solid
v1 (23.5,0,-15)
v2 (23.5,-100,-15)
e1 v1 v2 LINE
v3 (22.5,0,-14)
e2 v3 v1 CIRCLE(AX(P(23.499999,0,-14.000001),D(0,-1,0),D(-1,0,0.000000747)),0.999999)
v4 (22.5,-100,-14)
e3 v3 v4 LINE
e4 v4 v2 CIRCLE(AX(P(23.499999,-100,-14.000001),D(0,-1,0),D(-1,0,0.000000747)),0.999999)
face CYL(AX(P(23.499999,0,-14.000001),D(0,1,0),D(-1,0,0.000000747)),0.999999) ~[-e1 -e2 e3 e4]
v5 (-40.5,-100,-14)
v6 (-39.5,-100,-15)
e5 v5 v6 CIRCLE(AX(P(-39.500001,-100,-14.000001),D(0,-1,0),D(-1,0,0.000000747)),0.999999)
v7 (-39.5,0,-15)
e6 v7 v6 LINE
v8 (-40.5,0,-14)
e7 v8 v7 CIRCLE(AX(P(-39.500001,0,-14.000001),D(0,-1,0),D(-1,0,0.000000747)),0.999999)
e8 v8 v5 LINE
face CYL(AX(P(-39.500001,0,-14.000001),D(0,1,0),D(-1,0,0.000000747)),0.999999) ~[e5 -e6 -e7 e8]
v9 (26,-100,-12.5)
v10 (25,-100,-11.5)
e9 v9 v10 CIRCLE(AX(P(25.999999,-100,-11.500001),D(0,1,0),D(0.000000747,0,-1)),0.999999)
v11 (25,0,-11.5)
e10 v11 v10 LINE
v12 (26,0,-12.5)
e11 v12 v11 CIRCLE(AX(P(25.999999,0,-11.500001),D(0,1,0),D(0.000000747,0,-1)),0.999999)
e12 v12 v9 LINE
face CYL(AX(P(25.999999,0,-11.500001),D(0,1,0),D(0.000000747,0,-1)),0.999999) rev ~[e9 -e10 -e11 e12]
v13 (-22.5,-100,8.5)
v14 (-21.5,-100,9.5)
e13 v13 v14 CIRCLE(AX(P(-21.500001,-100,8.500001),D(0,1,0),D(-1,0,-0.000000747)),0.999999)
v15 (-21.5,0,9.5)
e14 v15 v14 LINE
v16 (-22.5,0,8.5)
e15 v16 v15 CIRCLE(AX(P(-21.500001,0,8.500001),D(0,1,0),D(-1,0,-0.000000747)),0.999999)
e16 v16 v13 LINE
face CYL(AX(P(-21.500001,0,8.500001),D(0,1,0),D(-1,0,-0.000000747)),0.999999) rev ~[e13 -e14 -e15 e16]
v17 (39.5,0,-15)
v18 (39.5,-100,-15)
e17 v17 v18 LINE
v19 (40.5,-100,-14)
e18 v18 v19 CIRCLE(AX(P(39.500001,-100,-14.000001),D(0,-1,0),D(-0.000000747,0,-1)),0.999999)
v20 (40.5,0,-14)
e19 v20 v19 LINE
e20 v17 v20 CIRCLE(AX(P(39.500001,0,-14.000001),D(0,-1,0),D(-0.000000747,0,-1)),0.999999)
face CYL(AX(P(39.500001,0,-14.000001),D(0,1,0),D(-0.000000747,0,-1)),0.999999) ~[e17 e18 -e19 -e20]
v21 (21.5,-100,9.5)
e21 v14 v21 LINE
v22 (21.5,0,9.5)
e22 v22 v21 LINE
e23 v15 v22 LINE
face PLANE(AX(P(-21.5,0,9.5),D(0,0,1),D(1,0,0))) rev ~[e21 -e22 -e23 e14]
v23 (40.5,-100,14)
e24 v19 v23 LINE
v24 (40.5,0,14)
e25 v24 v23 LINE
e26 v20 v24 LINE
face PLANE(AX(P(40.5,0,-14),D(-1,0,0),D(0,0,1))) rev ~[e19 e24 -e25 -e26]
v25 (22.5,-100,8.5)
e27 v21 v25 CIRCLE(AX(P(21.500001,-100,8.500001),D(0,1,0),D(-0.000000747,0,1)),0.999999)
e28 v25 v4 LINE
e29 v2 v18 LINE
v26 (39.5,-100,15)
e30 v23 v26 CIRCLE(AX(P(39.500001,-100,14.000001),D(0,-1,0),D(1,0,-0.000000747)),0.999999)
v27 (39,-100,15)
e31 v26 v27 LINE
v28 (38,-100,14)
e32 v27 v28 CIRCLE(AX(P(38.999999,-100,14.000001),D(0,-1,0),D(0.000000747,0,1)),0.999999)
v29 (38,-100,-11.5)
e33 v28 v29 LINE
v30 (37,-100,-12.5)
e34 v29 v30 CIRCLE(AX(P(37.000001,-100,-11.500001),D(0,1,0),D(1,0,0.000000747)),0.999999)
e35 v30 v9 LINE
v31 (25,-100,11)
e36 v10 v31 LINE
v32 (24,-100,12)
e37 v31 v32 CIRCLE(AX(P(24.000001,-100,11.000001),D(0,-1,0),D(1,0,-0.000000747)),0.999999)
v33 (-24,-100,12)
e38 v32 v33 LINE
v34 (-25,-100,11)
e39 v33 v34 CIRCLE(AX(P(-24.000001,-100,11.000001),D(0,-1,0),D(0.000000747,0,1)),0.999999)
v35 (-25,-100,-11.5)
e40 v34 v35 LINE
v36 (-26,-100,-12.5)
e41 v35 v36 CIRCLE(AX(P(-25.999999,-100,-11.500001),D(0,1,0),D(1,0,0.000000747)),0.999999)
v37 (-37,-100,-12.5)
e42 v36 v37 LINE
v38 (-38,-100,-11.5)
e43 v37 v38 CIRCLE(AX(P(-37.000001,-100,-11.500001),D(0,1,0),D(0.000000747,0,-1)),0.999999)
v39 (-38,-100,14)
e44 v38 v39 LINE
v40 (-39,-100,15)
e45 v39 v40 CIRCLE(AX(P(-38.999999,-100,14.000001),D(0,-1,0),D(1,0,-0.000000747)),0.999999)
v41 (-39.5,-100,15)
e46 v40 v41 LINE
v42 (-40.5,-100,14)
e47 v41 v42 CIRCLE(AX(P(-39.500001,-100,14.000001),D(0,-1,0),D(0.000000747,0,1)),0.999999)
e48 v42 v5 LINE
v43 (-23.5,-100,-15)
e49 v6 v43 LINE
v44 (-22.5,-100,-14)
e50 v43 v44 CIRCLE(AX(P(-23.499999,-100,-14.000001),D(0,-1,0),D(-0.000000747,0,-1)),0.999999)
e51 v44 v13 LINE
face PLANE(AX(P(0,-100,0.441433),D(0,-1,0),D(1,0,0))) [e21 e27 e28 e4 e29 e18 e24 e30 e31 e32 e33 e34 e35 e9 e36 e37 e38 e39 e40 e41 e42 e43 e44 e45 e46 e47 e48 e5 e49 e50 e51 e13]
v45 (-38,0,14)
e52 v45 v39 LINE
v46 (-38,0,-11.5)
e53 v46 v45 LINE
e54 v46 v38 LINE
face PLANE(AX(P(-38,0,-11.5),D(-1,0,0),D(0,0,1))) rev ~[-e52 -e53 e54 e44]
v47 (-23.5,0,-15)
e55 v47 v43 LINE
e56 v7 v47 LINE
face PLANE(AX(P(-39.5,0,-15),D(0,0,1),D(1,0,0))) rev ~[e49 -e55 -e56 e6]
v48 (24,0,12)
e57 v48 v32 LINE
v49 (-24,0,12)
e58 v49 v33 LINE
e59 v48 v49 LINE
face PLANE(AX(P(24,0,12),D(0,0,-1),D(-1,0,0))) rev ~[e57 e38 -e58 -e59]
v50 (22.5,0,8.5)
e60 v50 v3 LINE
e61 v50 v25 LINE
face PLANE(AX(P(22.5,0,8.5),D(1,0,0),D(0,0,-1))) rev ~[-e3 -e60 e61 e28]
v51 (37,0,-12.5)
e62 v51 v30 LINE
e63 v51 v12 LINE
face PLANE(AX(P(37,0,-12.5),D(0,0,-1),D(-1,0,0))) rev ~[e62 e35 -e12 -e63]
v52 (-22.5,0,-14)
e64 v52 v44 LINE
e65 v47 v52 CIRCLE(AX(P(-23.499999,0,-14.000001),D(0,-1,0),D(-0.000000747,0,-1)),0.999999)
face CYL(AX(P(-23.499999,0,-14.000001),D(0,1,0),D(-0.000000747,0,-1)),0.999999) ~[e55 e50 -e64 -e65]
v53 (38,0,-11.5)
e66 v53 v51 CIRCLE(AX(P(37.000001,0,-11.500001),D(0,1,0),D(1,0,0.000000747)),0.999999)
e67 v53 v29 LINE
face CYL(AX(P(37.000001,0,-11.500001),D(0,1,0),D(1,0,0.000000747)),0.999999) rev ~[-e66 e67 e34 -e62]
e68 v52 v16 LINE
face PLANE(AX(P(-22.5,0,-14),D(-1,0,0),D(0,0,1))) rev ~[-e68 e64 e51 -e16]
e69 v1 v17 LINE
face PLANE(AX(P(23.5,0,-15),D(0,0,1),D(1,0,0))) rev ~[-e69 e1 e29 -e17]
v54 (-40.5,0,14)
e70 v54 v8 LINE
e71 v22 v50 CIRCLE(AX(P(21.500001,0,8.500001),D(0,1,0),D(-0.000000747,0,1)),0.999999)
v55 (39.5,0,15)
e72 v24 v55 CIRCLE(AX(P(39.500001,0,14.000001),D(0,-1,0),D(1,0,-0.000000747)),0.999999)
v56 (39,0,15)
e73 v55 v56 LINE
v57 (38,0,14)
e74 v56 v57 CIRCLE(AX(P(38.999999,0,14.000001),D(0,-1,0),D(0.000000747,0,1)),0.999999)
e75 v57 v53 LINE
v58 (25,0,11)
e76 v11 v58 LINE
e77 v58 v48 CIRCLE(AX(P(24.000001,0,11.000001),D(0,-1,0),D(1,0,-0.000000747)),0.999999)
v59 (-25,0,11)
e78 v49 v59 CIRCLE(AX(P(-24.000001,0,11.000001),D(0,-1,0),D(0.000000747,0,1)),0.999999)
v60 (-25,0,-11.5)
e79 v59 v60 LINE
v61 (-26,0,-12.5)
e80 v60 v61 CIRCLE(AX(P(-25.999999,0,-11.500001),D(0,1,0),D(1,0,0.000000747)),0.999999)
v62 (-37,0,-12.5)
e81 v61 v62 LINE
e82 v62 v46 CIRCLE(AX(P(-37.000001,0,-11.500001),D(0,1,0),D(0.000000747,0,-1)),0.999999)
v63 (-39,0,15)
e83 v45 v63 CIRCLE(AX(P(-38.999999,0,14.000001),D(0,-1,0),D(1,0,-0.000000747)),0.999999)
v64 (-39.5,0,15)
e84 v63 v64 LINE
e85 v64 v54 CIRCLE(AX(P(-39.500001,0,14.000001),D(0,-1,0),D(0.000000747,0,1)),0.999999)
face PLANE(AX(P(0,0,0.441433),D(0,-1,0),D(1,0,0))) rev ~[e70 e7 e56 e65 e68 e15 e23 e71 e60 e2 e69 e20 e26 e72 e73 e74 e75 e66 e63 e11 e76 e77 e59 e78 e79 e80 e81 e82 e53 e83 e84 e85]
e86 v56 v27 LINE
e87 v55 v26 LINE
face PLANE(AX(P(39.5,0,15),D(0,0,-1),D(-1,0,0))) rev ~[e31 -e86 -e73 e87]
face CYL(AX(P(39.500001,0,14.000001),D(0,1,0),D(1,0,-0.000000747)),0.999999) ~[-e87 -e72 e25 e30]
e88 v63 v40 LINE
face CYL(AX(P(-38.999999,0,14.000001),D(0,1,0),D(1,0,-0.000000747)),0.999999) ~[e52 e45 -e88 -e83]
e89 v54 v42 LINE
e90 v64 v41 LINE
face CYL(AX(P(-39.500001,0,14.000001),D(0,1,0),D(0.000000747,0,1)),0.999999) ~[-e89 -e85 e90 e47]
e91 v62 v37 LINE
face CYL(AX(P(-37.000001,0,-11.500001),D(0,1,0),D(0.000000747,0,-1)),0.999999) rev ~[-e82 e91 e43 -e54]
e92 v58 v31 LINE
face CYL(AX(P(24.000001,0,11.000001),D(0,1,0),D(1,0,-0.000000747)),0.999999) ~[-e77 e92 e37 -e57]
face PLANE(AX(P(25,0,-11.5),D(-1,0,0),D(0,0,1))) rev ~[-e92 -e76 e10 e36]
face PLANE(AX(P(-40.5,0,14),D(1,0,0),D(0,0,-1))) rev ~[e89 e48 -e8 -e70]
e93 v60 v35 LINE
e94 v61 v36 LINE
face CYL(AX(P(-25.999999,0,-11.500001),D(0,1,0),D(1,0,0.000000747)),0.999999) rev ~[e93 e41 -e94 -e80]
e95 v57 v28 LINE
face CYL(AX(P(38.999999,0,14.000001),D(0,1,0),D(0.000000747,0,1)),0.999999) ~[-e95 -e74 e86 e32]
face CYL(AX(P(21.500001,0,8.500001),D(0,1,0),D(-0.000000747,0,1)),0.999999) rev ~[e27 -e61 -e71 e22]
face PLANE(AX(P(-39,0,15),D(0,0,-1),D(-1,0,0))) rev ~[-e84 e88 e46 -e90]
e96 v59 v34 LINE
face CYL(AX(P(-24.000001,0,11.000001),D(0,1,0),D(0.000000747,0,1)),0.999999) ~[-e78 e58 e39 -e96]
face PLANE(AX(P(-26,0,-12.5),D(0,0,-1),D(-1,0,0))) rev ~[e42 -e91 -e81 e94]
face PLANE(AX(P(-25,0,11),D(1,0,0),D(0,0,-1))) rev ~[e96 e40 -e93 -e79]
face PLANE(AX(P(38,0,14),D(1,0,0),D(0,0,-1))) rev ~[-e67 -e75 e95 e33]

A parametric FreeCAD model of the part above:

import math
import FreeCAD as App
import Part
import Sketcher
from FreeCAD import Vector
Q = App.Units.Quantity

doc = App.newDocument("Part")
params = doc.addObject("Spreadsheet::Sheet", "Params")
for row, (alias, value) in enumerate([
    ("sketch1_radius", "0.999999 mm"),
    ("sketch1_width", "16 mm"),
    ("sketch1_width2", "11 mm"),
    ("sketch1_width3", "48 mm"),
    ("sketch1_width4", "43 mm"),
    ("pad1_length", "100 mm"),
], start=1):
    params.set(f"A{row}", alias)
    params.set(f"B{row}", "=" + value)
    params.setAlias(f"B{row}", alias)

body = doc.addObject("PartDesign::Body", "Body")

# Sketch on XZ plane
sketch1 = body.newObject("Sketcher::SketchObject", "Sketch")
sketch1.AttachmentSupport = (doc.getObject("XZ_Plane"), [""])
sketch1.MapMode = "FlatFace"
sketch1.addGeometry([
    Part.LineSegment(Vector(23.5, -15, 0), Vector(39.5, -15, 0)),  # 0
    Part.ArcOfCircle(Part.Circle(Vector(39.5, -14, 0), Vector(0, 0, 1), 1), math.radians(-90), math.radians(0)),  # 1
    Part.LineSegment(Vector(40.5, -14, 0), Vector(40.5, 14, 0)),  # 2
    Part.ArcOfCircle(Part.Circle(Vector(39.5, 14, 0), Vector(0, 0, 1), 1), math.radians(0), math.radians(90)),  # 3
    Part.LineSegment(Vector(39.5, 15, 0), Vector(39, 15, 0)),  # 4
    Part.ArcOfCircle(Part.Circle(Vector(39, 14, 0), Vector(0, 0, 1), 1), math.radians(90), math.radians(180)),  # 5
    Part.LineSegment(Vector(38, 14, 0), Vector(38, -11.5, 0)),  # 6
    Part.ArcOfCircle(Part.Circle(Vector(37, -11.5, 0), Vector(0, 0, 1), 1), math.radians(-90), math.radians(0)),  # 7
    Part.LineSegment(Vector(37, -12.5, 0), Vector(26, -12.5, 0)),  # 8
    Part.ArcOfCircle(Part.Circle(Vector(26, -11.5, 0), Vector(0, 0, 1), 1), math.radians(180), math.radians(270)),  # 9
    Part.LineSegment(Vector(25, -11.5, 0), Vector(25, 11, 0)),  # 10
    Part.ArcOfCircle(Part.Circle(Vector(24, 11, 0), Vector(0, 0, 1), 1), math.radians(0), math.radians(90)),  # 11
    Part.LineSegment(Vector(24, 12, 0), Vector(-24, 12, 0)),  # 12
    Part.ArcOfCircle(Part.Circle(Vector(-24, 11, 0), Vector(0, 0, 1), 1), math.radians(90), math.radians(180)),  # 13
    Part.LineSegment(Vector(-25, 11, 0), Vector(-25, -11.5, 0)),  # 14
    Part.ArcOfCircle(Part.Circle(Vector(-26, -11.5, 0), Vector(0, 0, 1), 1), math.radians(-90), math.radians(0)),  # 15
    Part.LineSegment(Vector(-26, -12.5, 0), Vector(-37, -12.5, 0)),  # 16
    Part.ArcOfCircle(Part.Circle(Vector(-37, -11.5, 0), Vector(0, 0, 1), 1), math.radians(180), math.radians(270)),  # 17
    Part.LineSegment(Vector(-38, -11.5, 0), Vector(-38, 14, 0)),  # 18
    Part.ArcOfCircle(Part.Circle(Vector(-39, 14, 0), Vector(0, 0, 1), 1), math.radians(0), math.radians(90)),  # 19
    Part.LineSegment(Vector(-39, 15, 0), Vector(-39.5, 15, 0)),  # 20
    Part.ArcOfCircle(Part.Circle(Vector(-39.5, 14, 0), Vector(0, 0, 1), 1), math.radians(90), math.radians(180)),  # 21
    Part.LineSegment(Vector(-40.5, 14, 0), Vector(-40.5, -14, 0)),  # 22
    Part.ArcOfCircle(Part.Circle(Vector(-39.5, -14, 0), Vector(0, 0, 1), 1), math.radians(180), math.radians(270)),  # 23
    Part.LineSegment(Vector(-39.5, -15, 0), Vector(-23.5, -15, 0)),  # 24
    Part.ArcOfCircle(Part.Circle(Vector(-23.5, -14, 0), Vector(0, 0, 1), 1), math.radians(-90), math.radians(0)),  # 25
    Part.LineSegment(Vector(-22.5, -14, 0), Vector(-22.5, 8.5, 0)),  # 26
    Part.ArcOfCircle(Part.Circle(Vector(-21.5, 8.5, 0), Vector(0, 0, 1), 1), math.radians(90), math.radians(180)),  # 27
    Part.LineSegment(Vector(-21.5, 9.5, 0), Vector(21.5, 9.5, 0)),  # 28
    Part.ArcOfCircle(Part.Circle(Vector(21.5, 8.5, 0), Vector(0, 0, 1), 1), math.radians(0), math.radians(90)),  # 29
    Part.LineSegment(Vector(22.5, 8.5, 0), Vector(22.5, -14, 0)),  # 30
    Part.ArcOfCircle(Part.Circle(Vector(23.5, -14, 0), Vector(0, 0, 1), 1), math.radians(180), math.radians(270)),  # 31
], False)
sketch1.addConstraint([
    Sketcher.Constraint("Tangent", 0, 2, 1, 1),
    Sketcher.Constraint("Tangent", 1, 2, 2, 1),
    Sketcher.Constraint("Tangent", 2, 2, 3, 1),
    Sketcher.Constraint("Tangent", 3, 2, 4, 1),
    Sketcher.Constraint("Tangent", 4, 2, 5, 1),
    Sketcher.Constraint("Tangent", 5, 2, 6, 1),
    Sketcher.Constraint("Tangent", 6, 2, 7, 2),
    Sketcher.Constraint("Tangent", 7, 1, 8, 1),
    Sketcher.Constraint("Tangent", 8, 2, 9, 2),
    Sketcher.Constraint("Tangent", 9, 1, 10, 1),
    Sketcher.Constraint("Tangent", 10, 2, 11, 1),
    Sketcher.Constraint("Tangent", 11, 2, 12, 1),
    Sketcher.Constraint("Tangent", 12, 2, 13, 1),
    Sketcher.Constraint("Tangent", 13, 2, 14, 1),
    Sketcher.Constraint("Tangent", 14, 2, 15, 2),
    Sketcher.Constraint("Tangent", 15, 1, 16, 1),
    Sketcher.Constraint("Tangent", 16, 2, 17, 2),
    Sketcher.Constraint("Tangent", 17, 1, 18, 1),
    Sketcher.Constraint("Tangent", 18, 2, 19, 1),
    Sketcher.Constraint("Tangent", 19, 2, 20, 1),
    Sketcher.Constraint("Tangent", 20, 2, 21, 1),
    Sketcher.Constraint("Tangent", 21, 2, 22, 1),
    Sketcher.Constraint("Tangent", 22, 2, 23, 1),
    Sketcher.Constraint("Tangent", 23, 2, 24, 1),
    Sketcher.Constraint("Tangent", 24, 2, 25, 1),
    Sketcher.Constraint("Tangent", 25, 2, 26, 1),
    Sketcher.Constraint("Tangent", 26, 2, 27, 2),
    Sketcher.Constraint("Tangent", 27, 1, 28, 1),
    Sketcher.Constraint("Tangent", 28, 2, 29, 2),
    Sketcher.Constraint("Tangent", 29, 1, 30, 1),
    Sketcher.Constraint("Tangent", 30, 2, 31, 1),
    Sketcher.Constraint("Tangent", 31, 2, 0, 1),
    Sketcher.Constraint("Horizontal", 0),
    Sketcher.Constraint("Vertical", 2),
    Sketcher.Constraint("Horizontal", 4),
    Sketcher.Constraint("Vertical", 6),
    Sketcher.Constraint("Horizontal", 8),
    Sketcher.Constraint("Vertical", 10),
    Sketcher.Constraint("Horizontal", 12),
    Sketcher.Constraint("Vertical", 14),
    Sketcher.Constraint("Horizontal", 16),
    Sketcher.Constraint("Vertical", 18),
    Sketcher.Constraint("Horizontal", 20),
    Sketcher.Constraint("Vertical", 22),
    Sketcher.Constraint("Horizontal", 24),
    Sketcher.Constraint("Vertical", 26),
    Sketcher.Constraint("Horizontal", 28),
    Sketcher.Constraint("Vertical", 30),
    Sketcher.Constraint("Equal", 1, 3),
    Sketcher.Constraint("Equal", 3, 5),
    Sketcher.Constraint("Equal", 5, 7),
    Sketcher.Constraint("Equal", 7, 9),
    Sketcher.Constraint("Equal", 9, 11),
    Sketcher.Constraint("Equal", 11, 13),
    Sketcher.Constraint("Equal", 13, 15),
    Sketcher.Constraint("Equal", 15, 17),
    Sketcher.Constraint("Equal", 17, 19),
    Sketcher.Constraint("Equal", 19, 21),
    Sketcher.Constraint("Equal", 21, 23),
    Sketcher.Constraint("Equal", 23, 25),
    Sketcher.Constraint("Equal", 25, 27),
    Sketcher.Constraint("Equal", 27, 29),
    Sketcher.Constraint("Equal", 29, 31),
    Sketcher.Constraint("Symmetric", 1, 3, 21, 3, -1, 1),
    Sketcher.Constraint("Symmetric", 9, 3, 15, 3, -2),
    Sketcher.Constraint("Symmetric", 5, 3, 19, 3, -2),
    Sketcher.Constraint("Symmetric", 25, 3, 31, 3, -2),
    Sketcher.Constraint("Equal", 14, 26),
    Sketcher.Constraint("Radius", 1, Q("0.999999 mm")),
    Sketcher.Constraint("DistanceX", 0, 1, 0, 2, Q("16 mm")),
    Sketcher.Constraint("DistanceX", 8, 2, 8, 1, Q("11 mm")),
    Sketcher.Constraint("DistanceX", 12, 2, 12, 1, Q("48 mm")),
    Sketcher.Constraint("DistanceX", 28, 1, 28, 2, Q("43 mm")),
    Sketcher.Constraint("DistanceY", 2, 1, 2, 2, Q("28 mm")),
    Sketcher.Constraint("DistanceY", 6, 2, 6, 1, Q("25.5 mm")),
    Sketcher.Constraint("DistanceY", 10, 1, 10, 2, Q("22.5 mm")),
])
sketch1.setExpression("Constraints[68]", "Params.sketch1_radius")
sketch1.setExpression("Constraints[69]", "Params.sketch1_width")
sketch1.setExpression("Constraints[70]", "Params.sketch1_width2")
sketch1.setExpression("Constraints[71]", "Params.sketch1_width3")
sketch1.setExpression("Constraints[72]", "Params.sketch1_width4")
pad1 = body.newObject("PartDesign::Pad", "Pad")
pad1.Profile = sketch1
pad1.setExpression("Length", "Params.pad1_length")

doc.recompute()
